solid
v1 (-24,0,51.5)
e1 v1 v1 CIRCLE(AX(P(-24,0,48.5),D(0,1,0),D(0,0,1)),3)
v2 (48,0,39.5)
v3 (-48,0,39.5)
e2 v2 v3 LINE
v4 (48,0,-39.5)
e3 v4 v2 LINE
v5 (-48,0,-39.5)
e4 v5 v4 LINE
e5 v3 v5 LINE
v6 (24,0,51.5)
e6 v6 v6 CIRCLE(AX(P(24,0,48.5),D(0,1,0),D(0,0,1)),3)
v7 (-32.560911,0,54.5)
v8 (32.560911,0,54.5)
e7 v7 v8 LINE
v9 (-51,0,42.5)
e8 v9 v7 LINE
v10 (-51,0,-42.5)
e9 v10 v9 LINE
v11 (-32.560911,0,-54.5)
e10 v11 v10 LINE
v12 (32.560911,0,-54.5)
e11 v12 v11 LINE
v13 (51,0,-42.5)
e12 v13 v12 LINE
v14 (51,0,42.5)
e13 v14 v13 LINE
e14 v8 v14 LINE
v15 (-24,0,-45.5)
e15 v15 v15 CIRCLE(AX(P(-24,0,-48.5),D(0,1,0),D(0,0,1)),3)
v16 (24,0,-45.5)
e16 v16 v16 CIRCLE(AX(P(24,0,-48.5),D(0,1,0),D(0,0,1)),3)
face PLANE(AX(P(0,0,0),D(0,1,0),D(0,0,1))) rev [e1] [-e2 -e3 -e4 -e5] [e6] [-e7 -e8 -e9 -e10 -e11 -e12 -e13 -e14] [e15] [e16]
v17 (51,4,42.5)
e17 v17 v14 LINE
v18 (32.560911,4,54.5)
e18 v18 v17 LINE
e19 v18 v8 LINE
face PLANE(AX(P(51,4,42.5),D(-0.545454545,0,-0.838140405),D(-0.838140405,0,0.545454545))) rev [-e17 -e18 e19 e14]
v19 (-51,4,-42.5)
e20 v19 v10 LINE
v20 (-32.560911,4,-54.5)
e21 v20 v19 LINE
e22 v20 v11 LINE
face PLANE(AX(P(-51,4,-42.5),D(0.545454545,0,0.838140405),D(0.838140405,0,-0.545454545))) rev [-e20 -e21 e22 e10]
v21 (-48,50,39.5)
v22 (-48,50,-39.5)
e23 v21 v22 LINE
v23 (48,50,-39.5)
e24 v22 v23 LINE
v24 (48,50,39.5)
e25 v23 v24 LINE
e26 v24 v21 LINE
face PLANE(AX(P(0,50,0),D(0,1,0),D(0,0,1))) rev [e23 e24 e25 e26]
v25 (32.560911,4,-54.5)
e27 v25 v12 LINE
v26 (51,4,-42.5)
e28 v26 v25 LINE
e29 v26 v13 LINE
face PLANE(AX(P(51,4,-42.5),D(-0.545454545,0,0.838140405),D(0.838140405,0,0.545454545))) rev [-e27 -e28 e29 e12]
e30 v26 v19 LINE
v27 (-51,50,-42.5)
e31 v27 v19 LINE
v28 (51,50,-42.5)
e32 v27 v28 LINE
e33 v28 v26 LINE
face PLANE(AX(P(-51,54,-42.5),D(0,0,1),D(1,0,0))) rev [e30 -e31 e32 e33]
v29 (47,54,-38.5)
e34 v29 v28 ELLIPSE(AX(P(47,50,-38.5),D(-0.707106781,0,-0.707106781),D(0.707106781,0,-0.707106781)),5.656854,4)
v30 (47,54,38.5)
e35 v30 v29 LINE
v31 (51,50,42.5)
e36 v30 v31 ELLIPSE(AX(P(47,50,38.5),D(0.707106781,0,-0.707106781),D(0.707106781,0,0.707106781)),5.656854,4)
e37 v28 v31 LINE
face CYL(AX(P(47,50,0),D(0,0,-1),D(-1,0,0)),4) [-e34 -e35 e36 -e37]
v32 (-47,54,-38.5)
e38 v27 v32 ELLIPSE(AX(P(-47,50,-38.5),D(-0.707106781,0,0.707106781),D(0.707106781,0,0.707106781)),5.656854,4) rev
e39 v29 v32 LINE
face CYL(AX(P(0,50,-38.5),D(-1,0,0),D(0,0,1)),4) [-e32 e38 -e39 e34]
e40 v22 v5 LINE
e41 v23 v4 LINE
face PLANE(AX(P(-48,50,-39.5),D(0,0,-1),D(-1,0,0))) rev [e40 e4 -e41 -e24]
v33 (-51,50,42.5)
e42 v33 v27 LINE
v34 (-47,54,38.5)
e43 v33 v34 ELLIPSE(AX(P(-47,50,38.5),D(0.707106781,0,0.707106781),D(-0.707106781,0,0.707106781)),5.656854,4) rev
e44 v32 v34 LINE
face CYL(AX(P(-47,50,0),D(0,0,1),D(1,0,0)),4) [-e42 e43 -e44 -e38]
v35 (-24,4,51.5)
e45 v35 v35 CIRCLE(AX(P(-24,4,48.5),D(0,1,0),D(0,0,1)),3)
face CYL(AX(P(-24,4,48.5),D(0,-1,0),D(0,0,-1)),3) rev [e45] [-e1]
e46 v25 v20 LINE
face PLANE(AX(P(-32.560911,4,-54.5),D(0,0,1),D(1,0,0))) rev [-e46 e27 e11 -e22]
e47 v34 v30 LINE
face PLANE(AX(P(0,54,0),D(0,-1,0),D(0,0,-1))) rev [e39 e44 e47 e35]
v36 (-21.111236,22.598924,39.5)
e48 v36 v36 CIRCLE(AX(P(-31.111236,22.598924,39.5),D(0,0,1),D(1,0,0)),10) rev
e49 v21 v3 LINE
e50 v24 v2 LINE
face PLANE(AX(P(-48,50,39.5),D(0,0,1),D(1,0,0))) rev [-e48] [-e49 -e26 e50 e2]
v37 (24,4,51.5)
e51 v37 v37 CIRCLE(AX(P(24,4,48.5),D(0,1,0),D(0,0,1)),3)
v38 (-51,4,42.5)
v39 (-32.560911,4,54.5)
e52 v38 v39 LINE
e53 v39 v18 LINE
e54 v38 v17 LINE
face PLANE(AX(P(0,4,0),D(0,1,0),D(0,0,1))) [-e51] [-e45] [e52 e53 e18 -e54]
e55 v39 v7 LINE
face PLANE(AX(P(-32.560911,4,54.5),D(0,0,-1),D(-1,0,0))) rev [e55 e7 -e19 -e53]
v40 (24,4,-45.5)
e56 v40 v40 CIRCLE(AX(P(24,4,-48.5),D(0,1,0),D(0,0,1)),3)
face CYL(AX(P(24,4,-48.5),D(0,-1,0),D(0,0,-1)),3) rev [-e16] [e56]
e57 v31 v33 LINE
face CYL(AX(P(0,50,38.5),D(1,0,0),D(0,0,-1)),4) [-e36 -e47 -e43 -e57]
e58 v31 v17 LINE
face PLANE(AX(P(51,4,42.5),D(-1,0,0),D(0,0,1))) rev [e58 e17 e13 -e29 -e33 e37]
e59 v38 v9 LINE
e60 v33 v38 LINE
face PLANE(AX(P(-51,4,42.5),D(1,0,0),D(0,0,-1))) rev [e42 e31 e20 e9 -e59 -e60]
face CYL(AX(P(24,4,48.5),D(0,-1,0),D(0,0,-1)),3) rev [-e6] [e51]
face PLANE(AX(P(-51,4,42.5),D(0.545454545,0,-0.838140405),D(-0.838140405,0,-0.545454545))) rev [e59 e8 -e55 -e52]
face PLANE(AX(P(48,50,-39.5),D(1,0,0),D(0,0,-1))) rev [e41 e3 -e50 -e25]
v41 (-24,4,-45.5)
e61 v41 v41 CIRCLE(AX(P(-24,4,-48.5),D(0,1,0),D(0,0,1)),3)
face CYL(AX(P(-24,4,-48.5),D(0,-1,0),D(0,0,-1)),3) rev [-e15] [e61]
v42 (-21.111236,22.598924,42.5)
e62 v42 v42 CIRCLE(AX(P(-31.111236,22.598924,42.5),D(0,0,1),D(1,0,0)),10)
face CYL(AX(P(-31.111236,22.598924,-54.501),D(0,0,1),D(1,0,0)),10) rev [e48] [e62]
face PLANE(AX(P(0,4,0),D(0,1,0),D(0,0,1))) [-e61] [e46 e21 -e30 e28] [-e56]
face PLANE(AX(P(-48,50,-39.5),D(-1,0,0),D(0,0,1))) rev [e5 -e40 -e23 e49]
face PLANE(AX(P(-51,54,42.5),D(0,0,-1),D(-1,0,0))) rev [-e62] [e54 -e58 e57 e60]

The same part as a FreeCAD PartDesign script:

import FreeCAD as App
import Part
import Sketcher
from FreeCAD import Vector


def edges_at(feature, points):
    """Names of the edges that pass closest to the given points."""
    edges = feature.Shape.Edges
    near = lambda p: min(range(len(edges)), key=lambda i: edges[i].distToShape(Part.Vertex(*p))[0])
    return sorted({f"Edge{near(p) + 1}" for p in points})


def add_polygon(sketch, points):
    """Adds a closed chain of lines whose ends are joined by coincident constraints."""
    first, n = sketch.GeometryCount, len(points)
    for a, b in zip(points, points[1:] + points[:1]):
        sketch.addGeometry(Part.LineSegment(App.Vector(*a, 0), App.Vector(*b, 0)), False)
    for i in range(n):
        sketch.addConstraint(Sketcher.Constraint("Coincident", first + i, 2, first + (i + 1) % n, 1))

doc = App.newDocument("Part")
params = doc.addObject("Spreadsheet::Sheet", "Params")
for row, (alias, value) in enumerate([
    ("sketch1_diameter", "6 mm"),
    ("sketch1_height", "85 mm"),
    ("sketch1_length", "22 mm"),
    ("pad1_length", "4 mm"),
    ("sketch2_width", "102 mm"),
    ("sketch2_height", "85 mm"),
    ("pad2_length", "50 mm"),
    ("sketch3_width", "96 mm"),
    ("sketch3_height", "79 mm"),
    ("pocket1_length", "50 mm"),
    ("fillet_radius", "4 mm"),
    ("sketch4_diameter", "20 mm"),
], start=1):
    params.set(f"A{row}", alias)
    params.set(f"B{row}", "=" + value)
    params.setAlias(f"B{row}", alias)

body = doc.addObject("PartDesign::Body", "Body")

sketch1 = body.newObject("Sketcher::SketchObject", "Sketch")
sketch1.AttachmentSupport = (doc.getObject("XZ_Plane"), [""])
sketch1.MapMode = "FlatFace"
add_polygon(sketch1, [(51, 42.5), (51, -42.5), (32.560911, -54.5), (-32.560911, -54.5), (-51, -42.5), (-51, 42.5), (-32.560911, 54.5), (32.560911, 54.5)])
sketch1.addGeometry(Part.Circle(Vector(-24, 48.5, 0), Vector(0, 0, 1), 3), False)
sketch1.addGeometry(Part.Circle(Vector(24, 48.5, 0), Vector(0, 0, 1), 3), False)
sketch1.addGeometry(Part.Circle(Vector(-24, -48.5, 0), Vector(0, 0, 1), 3), False)
sketch1.addGeometry(Part.Circle(Vector(24, -48.5, 0), Vector(0, 0, 1), 3), False)
sketch1.addConstraint(Sketcher.Constraint("Vertical", 0))
sketch1.addConstraint(Sketcher.Constraint("Horizontal", 2))
sketch1.addConstraint(Sketcher.Constraint("Vertical", 4))
sketch1.addConstraint(Sketcher.Constraint("Horizontal", 6))
sketch1.addConstraint(Sketcher.Constraint("Equal", 8, 9))
sketch1.addConstraint(Sketcher.Constraint("Equal", 9, 10))
sketch1.addConstraint(Sketcher.Constraint("Equal", 10, 11))
sketch1.addConstraint(Sketcher.Constraint("Symmetric", 9, 3, 10, 3, -1, 1))
sketch1.addConstraint(Sketcher.Constraint("Symmetric", 8, 3, 11, 3, -1, 1))
sketch1.addConstraint(Sketcher.Constraint("Symmetric", 0, 2, 4, 2, -1, 1))
sketch1.addConstraint(Sketcher.Constraint("Symmetric", 1, 2, 5, 2, -1, 1))
sketch1.addConstraint(Sketcher.Constraint("Symmetric", 8, 3, 9, 3, -2))
sketch1.addConstraint(Sketcher.Constraint("Parallel", 3, 7))
sketch1.addConstraint(Sketcher.Constraint("Horizontal", 0, 2, 3, 2))
sketch1.addConstraint(Sketcher.Constraint("Horizontal", 4, 2, 7, 2))
sketch1.addConstraint(Sketcher.Constraint("Vertical", 2, 2, 5, 2))
sketch1.addConstraint(Sketcher.Constraint("Diameter", 8, 6.0))
sketch1.addConstraint(Sketcher.Constraint("DistanceY", 0, 2, 0, 1, 85.0))
sketch1.addConstraint(Sketcher.Constraint("Distance", 1, 22.0))
sketch1.addConstraint(Sketcher.Constraint("DistanceX", 8, 3, -1, 1, 24.0))
sketch1.addConstraint(Sketcher.Constraint("DistanceX", -1, 1, 0, 2, 51.0))
sketch1.addConstraint(Sketcher.Constraint("DistanceY", 10, 3, 8, 3, 97.0))
sketch1.addConstraint(Sketcher.Constraint("DistanceY", 1, 2, 11, 3, 6.0))
sketch1.setExpression("Constraints[24]", "Params.sketch1_diameter")
sketch1.setExpression("Constraints[25]", "Params.sketch1_height")
sketch1.setExpression("Constraints[26]", "Params.sketch1_length")
pad1 = body.newObject("PartDesign::Pad", "Pad")
pad1.Profile = sketch1
pad1.setExpression("Length", "Params.pad1_length")
pad1.Reversed = True

sketch2 = body.newObject("Sketcher::SketchObject", "Sketch001")
sketch2.AttachmentSupport = (doc.getObject("XZ_Plane"), [""])
sketch2.MapMode = "FlatFace"
sketch2.AttachmentOffset = App.Placement(Vector(0, 0, -4), App.Rotation())
add_polygon(sketch2, [(-51, -42.5), (-51, 42.5), (51, 42.5), (51, -42.5)])
sketch2.addConstraint(Sketcher.Constraint("Vertical", 0))
sketch2.addConstraint(Sketcher.Constraint("Horizontal", 1))
sketch2.addConstraint(Sketcher.Constraint("Vertical", 2))
sketch2.addConstraint(Sketcher.Constraint("Horizontal", 3))
sketch2.addConstraint(Sketcher.Constraint("Symmetric", 0, 2, 2, 2, -1, 1))
sketch2.addConstraint(Sketcher.Constraint("DistanceX", 1, 1, 1, 2, 102.0))
sketch2.addConstraint(Sketcher.Constraint("DistanceY", 0, 1, 0, 2, 85.0))
sketch2.setExpression("Constraints[9]", "Params.sketch2_width")
sketch2.setExpression("Constraints[10]", "Params.sketch2_height")
pad2 = body.newObject("PartDesign::Pad", "Pad001")
pad2.Profile = sketch2
pad2.setExpression("Length", "Params.pad2_length")
pad2.Reversed = True

sketch3 = body.newObject("Sketcher::SketchObject", "Sketch002")
sketch3.AttachmentSupport = (doc.getObject("XZ_Plane"), [""])
sketch3.MapMode = "FlatFace"
add_polygon(sketch3, [(-48, 39.5), (-48, -39.5), (48, -39.5), (48, 39.5)])
sketch3.addConstraint(Sketcher.Constraint("Vertical", 0))
sketch3.addConstraint(Sketcher.Constraint("Horizontal", 1))
sketch3.addConstraint(Sketcher.Constraint("Vertical", 2))
sketch3.addConstraint(Sketcher.Constraint("Horizontal", 3))
sketch3.addConstraint(Sketcher.Constraint("Symmetric", 0, 2, 2, 2, -1, 1))
sketch3.addConstraint(Sketcher.Constraint("DistanceX", 1, 1, 1, 2, 96.0))
sketch3.addConstraint(Sketcher.Constraint("DistanceY", 0, 2, 0, 1, 79.0))
sketch3.setExpression("Constraints[9]", "Params.sketch3_width")
sketch3.setExpression("Constraints[10]", "Params.sketch3_height")
pocket1 = body.newObject("PartDesign::Pocket", "Pocket")
pocket1.Profile = sketch3
pocket1.setExpression("Length", "Params.pocket1_length")
doc.recompute()

fillet = body.newObject("PartDesign::Fillet", "Fillet")
fillet.Base = (pocket1, edges_at(pocket1, [
    (51, 54, 0),
    (0, 54, -42.5),
    (-51, 54, 0),
    (0, 54, 42.5),
]))
fillet.setExpression("Radius", "Params.fillet_radius")

sketch4 = body.newObject("Sketcher::SketchObject", "Sketch003")
sketch4.AttachmentSupport = (doc.getObject("XY_Plane"), [""])
sketch4.MapMode = "FlatFace"
sketch4.AttachmentOffset = App.Placement(Vector(0, 0, 42.5), App.Rotation())
sketch4.addGeometry(Part.Circle(Vector(-31.111236, 22.598924, 0), Vector(0, 0, 1), 10), False)
sketch4.addConstraint(Sketcher.Constraint("Diameter", 0, 20.0))
sketch4.addConstraint(Sketcher.Constraint("DistanceX", 0, 3, -1, 1, 31.111236))
sketch4.addConstraint(Sketcher.Constraint("DistanceY", -1, 1, 0, 3, 22.598924))
sketch4.setExpression("Constraints[0]", "Params.sketch4_diameter")
pocket2 = body.newObject("PartDesign::Pocket", "Pocket001")
pocket2.Profile = sketch4
pocket2.Type = "UpToFirst"

doc.recompute()
